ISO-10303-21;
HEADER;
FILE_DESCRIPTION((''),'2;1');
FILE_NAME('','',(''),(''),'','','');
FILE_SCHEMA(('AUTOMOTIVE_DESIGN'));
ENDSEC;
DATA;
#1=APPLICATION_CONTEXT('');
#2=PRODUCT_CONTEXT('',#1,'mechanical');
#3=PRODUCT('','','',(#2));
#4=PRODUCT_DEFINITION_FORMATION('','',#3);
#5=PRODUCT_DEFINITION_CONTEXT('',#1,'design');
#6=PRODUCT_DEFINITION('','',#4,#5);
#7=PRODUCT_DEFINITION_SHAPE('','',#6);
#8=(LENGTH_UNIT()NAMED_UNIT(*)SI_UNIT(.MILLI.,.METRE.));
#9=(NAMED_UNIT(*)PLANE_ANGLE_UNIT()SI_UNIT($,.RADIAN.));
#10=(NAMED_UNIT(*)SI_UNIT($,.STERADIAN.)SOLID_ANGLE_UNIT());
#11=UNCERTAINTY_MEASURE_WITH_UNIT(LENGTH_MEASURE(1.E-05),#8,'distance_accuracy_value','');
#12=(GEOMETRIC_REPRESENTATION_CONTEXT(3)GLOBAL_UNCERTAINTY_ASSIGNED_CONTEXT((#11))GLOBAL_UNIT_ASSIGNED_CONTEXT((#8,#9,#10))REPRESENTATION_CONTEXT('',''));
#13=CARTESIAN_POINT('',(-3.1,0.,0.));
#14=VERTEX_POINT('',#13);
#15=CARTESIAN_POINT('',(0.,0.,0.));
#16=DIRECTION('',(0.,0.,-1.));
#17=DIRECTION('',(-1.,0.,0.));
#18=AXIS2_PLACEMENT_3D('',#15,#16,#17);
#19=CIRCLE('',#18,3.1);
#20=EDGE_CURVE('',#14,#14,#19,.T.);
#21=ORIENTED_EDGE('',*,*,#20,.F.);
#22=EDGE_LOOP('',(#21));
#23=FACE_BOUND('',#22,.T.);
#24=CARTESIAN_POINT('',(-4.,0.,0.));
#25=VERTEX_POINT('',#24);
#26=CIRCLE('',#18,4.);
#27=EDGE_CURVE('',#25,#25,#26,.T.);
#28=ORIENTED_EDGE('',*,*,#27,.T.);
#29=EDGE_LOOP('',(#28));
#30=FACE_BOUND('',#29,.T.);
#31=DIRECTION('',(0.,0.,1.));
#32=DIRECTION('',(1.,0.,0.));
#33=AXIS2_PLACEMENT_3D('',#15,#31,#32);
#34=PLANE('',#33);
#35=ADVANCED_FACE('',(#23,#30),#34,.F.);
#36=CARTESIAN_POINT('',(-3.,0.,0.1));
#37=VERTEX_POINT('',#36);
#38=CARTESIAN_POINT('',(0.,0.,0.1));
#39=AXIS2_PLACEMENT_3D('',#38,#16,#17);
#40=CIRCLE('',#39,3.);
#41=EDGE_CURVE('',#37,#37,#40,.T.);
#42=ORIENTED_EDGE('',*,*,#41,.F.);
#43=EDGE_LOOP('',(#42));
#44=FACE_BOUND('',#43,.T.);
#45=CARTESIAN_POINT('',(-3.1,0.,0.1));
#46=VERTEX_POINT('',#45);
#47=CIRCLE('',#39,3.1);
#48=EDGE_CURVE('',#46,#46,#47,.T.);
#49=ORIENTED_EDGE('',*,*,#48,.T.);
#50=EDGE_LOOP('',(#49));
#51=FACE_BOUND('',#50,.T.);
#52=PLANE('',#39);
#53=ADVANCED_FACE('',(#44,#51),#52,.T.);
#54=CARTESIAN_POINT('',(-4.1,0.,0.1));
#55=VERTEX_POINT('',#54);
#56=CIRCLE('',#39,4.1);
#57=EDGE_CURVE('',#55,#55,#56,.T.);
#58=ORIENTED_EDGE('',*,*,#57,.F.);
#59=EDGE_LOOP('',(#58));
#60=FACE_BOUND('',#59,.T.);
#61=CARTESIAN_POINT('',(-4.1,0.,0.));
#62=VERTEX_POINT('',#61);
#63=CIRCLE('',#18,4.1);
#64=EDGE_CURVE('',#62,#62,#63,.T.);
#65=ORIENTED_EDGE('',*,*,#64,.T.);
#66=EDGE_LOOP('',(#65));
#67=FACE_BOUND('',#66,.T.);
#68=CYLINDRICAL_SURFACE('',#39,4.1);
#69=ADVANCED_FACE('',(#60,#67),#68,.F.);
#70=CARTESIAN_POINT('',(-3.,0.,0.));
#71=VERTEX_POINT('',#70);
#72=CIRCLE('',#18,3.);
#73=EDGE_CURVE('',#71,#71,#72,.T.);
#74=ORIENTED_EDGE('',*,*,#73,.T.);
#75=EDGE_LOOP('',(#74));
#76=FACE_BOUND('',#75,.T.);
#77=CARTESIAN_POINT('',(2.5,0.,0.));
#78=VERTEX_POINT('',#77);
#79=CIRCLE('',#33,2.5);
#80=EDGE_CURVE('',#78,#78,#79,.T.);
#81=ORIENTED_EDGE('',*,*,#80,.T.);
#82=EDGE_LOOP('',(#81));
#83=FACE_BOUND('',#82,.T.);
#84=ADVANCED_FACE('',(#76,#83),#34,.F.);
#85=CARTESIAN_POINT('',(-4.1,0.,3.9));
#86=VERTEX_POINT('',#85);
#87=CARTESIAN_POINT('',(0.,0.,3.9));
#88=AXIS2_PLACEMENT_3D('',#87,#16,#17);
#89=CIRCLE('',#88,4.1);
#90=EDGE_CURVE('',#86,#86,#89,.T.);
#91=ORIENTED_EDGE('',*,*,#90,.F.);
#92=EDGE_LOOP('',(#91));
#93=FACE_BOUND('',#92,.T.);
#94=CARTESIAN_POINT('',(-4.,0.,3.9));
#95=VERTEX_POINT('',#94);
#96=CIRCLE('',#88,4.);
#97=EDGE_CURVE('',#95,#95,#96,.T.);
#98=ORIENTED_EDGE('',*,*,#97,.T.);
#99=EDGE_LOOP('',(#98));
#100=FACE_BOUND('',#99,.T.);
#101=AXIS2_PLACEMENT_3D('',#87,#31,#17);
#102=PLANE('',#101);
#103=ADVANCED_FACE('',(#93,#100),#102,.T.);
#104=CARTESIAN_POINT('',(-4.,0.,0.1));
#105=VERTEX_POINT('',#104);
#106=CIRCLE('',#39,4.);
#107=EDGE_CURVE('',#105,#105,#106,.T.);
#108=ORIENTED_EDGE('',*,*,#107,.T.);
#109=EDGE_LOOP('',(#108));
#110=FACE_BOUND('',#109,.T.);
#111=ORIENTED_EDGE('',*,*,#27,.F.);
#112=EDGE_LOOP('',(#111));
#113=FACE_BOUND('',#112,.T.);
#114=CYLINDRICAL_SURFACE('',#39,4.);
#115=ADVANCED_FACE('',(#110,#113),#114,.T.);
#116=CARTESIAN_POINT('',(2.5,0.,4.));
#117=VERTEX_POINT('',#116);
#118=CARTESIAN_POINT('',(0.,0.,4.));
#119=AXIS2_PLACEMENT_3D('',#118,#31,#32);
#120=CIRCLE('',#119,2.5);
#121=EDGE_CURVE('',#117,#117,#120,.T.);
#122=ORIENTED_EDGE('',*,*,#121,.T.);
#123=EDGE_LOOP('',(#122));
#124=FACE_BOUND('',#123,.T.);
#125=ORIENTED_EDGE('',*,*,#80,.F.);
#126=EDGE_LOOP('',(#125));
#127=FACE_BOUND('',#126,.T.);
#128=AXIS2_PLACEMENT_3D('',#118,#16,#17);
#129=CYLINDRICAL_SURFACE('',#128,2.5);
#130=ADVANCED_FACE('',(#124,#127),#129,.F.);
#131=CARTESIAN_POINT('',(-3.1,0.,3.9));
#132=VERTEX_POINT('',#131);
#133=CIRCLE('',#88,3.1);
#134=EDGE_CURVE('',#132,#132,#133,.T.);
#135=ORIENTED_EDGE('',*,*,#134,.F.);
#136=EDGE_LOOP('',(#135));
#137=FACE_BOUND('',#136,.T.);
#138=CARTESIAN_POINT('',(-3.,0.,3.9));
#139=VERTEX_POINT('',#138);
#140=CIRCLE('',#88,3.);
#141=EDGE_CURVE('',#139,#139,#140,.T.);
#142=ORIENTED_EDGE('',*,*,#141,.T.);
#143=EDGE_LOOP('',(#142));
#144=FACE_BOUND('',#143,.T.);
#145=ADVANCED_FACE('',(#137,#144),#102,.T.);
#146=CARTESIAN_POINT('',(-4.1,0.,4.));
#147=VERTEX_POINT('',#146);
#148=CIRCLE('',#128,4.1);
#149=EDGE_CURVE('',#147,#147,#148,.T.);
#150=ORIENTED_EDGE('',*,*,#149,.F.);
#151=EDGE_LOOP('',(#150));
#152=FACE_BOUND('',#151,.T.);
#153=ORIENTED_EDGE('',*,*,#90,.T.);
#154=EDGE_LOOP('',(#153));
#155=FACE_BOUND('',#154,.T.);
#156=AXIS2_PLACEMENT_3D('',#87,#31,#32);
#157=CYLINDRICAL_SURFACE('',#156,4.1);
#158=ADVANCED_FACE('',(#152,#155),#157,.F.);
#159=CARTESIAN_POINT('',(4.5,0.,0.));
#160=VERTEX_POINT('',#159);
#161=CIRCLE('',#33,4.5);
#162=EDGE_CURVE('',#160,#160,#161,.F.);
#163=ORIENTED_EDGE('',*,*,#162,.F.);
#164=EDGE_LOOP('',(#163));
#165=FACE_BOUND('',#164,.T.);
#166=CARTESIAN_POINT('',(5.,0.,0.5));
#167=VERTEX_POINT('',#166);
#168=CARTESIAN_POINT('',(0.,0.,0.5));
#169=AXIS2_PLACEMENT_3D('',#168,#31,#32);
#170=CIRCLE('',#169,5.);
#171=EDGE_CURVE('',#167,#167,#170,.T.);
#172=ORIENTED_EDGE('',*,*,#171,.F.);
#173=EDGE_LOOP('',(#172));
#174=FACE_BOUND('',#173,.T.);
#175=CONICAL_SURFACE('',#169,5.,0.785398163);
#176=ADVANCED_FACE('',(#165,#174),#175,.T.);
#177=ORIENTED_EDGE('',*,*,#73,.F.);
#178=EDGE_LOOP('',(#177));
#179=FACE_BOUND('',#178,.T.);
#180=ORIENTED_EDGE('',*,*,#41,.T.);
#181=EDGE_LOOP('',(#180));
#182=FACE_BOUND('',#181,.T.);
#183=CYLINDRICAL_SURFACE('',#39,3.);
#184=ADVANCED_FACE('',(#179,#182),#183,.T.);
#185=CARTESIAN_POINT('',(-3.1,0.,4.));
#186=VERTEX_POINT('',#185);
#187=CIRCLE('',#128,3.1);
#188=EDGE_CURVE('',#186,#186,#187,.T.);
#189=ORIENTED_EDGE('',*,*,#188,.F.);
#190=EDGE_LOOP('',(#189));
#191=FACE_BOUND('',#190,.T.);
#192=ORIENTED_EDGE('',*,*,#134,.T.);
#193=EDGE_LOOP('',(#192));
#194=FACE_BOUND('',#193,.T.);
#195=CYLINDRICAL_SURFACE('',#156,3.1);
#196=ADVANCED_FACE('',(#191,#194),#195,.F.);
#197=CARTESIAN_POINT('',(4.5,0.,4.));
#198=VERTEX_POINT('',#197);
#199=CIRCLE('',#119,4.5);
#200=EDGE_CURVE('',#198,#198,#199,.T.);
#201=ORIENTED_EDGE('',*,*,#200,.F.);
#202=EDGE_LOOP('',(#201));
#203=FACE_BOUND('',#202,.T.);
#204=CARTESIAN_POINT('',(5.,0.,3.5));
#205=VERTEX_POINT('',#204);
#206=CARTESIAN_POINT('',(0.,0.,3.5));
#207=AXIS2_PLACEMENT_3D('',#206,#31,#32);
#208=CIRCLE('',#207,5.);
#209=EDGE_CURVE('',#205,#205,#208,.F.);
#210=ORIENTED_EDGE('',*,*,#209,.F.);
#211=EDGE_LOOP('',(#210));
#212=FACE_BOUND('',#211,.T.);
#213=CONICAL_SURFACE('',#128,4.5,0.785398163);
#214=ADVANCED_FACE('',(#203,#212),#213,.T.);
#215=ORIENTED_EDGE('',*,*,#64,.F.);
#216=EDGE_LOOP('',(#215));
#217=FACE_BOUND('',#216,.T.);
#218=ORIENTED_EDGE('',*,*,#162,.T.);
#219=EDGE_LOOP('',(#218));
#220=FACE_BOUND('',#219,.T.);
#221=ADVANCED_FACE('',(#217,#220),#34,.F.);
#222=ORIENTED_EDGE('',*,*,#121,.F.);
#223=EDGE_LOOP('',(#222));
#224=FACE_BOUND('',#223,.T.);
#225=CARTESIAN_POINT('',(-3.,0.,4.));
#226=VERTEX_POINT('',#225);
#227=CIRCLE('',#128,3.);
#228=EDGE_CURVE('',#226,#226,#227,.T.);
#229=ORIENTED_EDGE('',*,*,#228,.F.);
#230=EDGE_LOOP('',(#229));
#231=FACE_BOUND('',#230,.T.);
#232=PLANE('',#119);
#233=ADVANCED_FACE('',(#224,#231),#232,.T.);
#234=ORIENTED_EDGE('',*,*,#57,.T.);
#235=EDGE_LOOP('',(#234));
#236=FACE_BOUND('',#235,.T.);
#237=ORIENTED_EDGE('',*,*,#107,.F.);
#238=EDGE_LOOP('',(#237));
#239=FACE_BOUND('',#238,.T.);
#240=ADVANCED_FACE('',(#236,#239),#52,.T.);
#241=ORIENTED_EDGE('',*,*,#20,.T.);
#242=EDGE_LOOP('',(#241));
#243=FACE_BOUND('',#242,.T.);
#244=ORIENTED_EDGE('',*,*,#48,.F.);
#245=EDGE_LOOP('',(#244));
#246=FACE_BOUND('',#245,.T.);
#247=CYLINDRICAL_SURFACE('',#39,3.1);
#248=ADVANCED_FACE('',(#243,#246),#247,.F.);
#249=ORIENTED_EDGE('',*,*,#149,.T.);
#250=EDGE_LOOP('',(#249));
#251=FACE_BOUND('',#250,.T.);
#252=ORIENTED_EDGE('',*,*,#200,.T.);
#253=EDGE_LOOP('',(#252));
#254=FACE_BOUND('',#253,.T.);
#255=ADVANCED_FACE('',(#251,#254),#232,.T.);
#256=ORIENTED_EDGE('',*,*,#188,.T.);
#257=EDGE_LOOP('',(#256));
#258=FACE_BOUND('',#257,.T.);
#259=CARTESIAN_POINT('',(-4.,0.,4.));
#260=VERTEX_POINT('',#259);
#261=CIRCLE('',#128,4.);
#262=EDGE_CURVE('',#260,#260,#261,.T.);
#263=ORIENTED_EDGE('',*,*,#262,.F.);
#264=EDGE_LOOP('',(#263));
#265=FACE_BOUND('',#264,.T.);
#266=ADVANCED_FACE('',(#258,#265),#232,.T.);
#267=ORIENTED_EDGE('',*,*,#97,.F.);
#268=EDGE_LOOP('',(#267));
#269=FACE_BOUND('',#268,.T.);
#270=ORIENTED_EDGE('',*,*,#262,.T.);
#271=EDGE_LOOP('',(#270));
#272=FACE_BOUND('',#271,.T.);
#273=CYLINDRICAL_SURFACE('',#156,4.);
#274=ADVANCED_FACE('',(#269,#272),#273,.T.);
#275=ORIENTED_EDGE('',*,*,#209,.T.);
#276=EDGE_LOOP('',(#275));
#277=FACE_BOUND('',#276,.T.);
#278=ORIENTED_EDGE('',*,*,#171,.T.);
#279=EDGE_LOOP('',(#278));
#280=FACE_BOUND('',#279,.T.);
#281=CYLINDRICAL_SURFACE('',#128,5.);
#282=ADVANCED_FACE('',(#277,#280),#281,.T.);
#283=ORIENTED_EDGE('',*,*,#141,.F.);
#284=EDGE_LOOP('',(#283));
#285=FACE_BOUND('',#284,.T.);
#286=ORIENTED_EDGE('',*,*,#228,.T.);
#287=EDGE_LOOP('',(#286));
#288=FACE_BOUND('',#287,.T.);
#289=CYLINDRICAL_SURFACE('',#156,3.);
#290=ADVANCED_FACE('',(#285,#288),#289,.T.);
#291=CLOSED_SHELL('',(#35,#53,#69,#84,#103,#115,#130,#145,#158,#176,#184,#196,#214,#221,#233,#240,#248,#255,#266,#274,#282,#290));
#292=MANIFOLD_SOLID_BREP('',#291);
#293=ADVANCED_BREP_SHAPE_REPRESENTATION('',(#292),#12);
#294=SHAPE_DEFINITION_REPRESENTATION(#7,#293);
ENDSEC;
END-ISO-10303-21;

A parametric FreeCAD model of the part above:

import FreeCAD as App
import Part
import Sketcher

V = App.Vector
Q = App.Units.Quantity


def edges_at(feature, points):
    """Names of the edges that pass closest to the given points."""
    edges = feature.Shape.Edges
    near = lambda p: min(range(len(edges)), key=lambda i: edges[i].distToShape(Part.Vertex(*p))[0])
    return sorted({f"Edge{near(p) + 1}" for p in points})

doc = App.newDocument("Part")
params = doc.addObject("Spreadsheet::Sheet", "Params")
for row, (alias, value) in enumerate([
    ("sketch1_diameter", "10 mm"),
    ("sketch1_diameter2", "5 mm"),
    ("pad1_length", "4 mm"),
    ("chamfer_size", "0.5 mm"),
    ("sketch2_diameter", "8 mm"),
    ("sketch2_diameter2", "6 mm"),
    ("sketch2_diameter3", "8.2 mm"),
    ("sketch2_diameter4", "6.2 mm"),
    ("pocket1_length", "0.1 mm"),
], start=1):
    params.set(f"A{row}", alias)
    params.set(f"B{row}", "=" + value)
    params.setAlias(f"B{row}", alias)

body = doc.addObject("PartDesign::Body", "Body")

# Sketch on XY plane
sketch1 = body.newObject("Sketcher::SketchObject", "Sketch")
sketch1.AttachmentSupport = (doc.getObject("XY_Plane"), [""])
sketch1.MapMode = "FlatFace"
sketch1.addGeometry([
    Part.Circle(V(0, 0, 0), V(0, 0, 1), 5),
    Part.Circle(V(0, 0, 0), V(0, 0, 1), 2.5),
], False)
sketch1.addConstraint([
    Sketcher.Constraint("Coincident", 0, 3, -1, 1),
    Sketcher.Constraint("Coincident", 1, 3, -1, 1),
    Sketcher.Constraint("Diameter", 0, Q("10 mm")),
    Sketcher.Constraint("Diameter", 1, Q("5 mm")),
])
sketch1.setExpression("Constraints[2]", "Params.sketch1_diameter")
sketch1.setExpression("Constraints[3]", "Params.sketch1_diameter2")
pad1 = body.newObject("PartDesign::Pad", "Pad")
pad1.Profile = sketch1
pad1.setExpression("Length", "Params.pad1_length")
doc.recompute()

chamfer = body.newObject("PartDesign::Chamfer", "Chamfer")
chamfer.Base = (pad1, edges_at(pad1, [(-5, 0, 0), (-5, 0, 4)]))
chamfer.setExpression("Size", "Params.chamfer_size")

# Sketch on XY plane
sketch2 = body.newObject("Sketcher::SketchObject", "Sketch001")
sketch2.AttachmentSupport = (doc.getObject("XY_Plane"), [""])
sketch2.MapMode = "FlatFace"
sketch2.addGeometry([
    Part.Circle(V(0, 0, 0), V(0, 0, 1), 4.1),
    Part.Circle(V(0, 0, 0), V(0, 0, 1), 4),
    Part.Circle(V(0, 0, 0), V(0, 0, 1), 3.1),
    Part.Circle(V(0, 0, 0), V(0, 0, 1), 3),
], False)
sketch2.addConstraint([
    Sketcher.Constraint("Coincident", 0, 3, -1, 1),
    Sketcher.Constraint("Coincident", 1, 3, -1, 1),
    Sketcher.Constraint("Coincident", 2, 3, -1, 1),
    Sketcher.Constraint("Coincident", 3, 3, -1, 1),
    Sketcher.Constraint("Diameter", 1, Q("8 mm")),
    Sketcher.Constraint("Diameter", 3, Q("6 mm")),
    Sketcher.Constraint("Diameter", 0, Q("8.2 mm")),
    Sketcher.Constraint("Diameter", 2, Q("6.2 mm")),
])
sketch2.setExpression("Constraints[4]", "Params.sketch2_diameter")
sketch2.setExpression("Constraints[5]", "Params.sketch2_diameter2")
sketch2.setExpression("Constraints[6]", "Params.sketch2_diameter3")
sketch2.setExpression("Constraints[7]", "Params.sketch2_diameter4")
pocket1 = body.newObject("PartDesign::Pocket", "Pocket")
pocket1.Profile = sketch2
pocket1.setExpression("Length", "Params.pocket1_length")
pocket1.Reversed = True
doc.recompute()

datumplane = body.newObject("PartDesign::Plane", "DatumPlane")
datumplane.AttachmentSupport = (doc.getObject("XY_Plane"), [""])
datumplane.MapMode = "FlatFace"
datumplane.AttachmentOffset = App.Placement(V(0, 0, 2), App.Rotation())
mirrored = body.newObject("PartDesign::Mirrored", "Mirrored")
mirrored.Originals = [pocket1]
mirrored.MirrorPlane = (datumplane, [""])
body.Tip = mirrored

doc.recompute()
